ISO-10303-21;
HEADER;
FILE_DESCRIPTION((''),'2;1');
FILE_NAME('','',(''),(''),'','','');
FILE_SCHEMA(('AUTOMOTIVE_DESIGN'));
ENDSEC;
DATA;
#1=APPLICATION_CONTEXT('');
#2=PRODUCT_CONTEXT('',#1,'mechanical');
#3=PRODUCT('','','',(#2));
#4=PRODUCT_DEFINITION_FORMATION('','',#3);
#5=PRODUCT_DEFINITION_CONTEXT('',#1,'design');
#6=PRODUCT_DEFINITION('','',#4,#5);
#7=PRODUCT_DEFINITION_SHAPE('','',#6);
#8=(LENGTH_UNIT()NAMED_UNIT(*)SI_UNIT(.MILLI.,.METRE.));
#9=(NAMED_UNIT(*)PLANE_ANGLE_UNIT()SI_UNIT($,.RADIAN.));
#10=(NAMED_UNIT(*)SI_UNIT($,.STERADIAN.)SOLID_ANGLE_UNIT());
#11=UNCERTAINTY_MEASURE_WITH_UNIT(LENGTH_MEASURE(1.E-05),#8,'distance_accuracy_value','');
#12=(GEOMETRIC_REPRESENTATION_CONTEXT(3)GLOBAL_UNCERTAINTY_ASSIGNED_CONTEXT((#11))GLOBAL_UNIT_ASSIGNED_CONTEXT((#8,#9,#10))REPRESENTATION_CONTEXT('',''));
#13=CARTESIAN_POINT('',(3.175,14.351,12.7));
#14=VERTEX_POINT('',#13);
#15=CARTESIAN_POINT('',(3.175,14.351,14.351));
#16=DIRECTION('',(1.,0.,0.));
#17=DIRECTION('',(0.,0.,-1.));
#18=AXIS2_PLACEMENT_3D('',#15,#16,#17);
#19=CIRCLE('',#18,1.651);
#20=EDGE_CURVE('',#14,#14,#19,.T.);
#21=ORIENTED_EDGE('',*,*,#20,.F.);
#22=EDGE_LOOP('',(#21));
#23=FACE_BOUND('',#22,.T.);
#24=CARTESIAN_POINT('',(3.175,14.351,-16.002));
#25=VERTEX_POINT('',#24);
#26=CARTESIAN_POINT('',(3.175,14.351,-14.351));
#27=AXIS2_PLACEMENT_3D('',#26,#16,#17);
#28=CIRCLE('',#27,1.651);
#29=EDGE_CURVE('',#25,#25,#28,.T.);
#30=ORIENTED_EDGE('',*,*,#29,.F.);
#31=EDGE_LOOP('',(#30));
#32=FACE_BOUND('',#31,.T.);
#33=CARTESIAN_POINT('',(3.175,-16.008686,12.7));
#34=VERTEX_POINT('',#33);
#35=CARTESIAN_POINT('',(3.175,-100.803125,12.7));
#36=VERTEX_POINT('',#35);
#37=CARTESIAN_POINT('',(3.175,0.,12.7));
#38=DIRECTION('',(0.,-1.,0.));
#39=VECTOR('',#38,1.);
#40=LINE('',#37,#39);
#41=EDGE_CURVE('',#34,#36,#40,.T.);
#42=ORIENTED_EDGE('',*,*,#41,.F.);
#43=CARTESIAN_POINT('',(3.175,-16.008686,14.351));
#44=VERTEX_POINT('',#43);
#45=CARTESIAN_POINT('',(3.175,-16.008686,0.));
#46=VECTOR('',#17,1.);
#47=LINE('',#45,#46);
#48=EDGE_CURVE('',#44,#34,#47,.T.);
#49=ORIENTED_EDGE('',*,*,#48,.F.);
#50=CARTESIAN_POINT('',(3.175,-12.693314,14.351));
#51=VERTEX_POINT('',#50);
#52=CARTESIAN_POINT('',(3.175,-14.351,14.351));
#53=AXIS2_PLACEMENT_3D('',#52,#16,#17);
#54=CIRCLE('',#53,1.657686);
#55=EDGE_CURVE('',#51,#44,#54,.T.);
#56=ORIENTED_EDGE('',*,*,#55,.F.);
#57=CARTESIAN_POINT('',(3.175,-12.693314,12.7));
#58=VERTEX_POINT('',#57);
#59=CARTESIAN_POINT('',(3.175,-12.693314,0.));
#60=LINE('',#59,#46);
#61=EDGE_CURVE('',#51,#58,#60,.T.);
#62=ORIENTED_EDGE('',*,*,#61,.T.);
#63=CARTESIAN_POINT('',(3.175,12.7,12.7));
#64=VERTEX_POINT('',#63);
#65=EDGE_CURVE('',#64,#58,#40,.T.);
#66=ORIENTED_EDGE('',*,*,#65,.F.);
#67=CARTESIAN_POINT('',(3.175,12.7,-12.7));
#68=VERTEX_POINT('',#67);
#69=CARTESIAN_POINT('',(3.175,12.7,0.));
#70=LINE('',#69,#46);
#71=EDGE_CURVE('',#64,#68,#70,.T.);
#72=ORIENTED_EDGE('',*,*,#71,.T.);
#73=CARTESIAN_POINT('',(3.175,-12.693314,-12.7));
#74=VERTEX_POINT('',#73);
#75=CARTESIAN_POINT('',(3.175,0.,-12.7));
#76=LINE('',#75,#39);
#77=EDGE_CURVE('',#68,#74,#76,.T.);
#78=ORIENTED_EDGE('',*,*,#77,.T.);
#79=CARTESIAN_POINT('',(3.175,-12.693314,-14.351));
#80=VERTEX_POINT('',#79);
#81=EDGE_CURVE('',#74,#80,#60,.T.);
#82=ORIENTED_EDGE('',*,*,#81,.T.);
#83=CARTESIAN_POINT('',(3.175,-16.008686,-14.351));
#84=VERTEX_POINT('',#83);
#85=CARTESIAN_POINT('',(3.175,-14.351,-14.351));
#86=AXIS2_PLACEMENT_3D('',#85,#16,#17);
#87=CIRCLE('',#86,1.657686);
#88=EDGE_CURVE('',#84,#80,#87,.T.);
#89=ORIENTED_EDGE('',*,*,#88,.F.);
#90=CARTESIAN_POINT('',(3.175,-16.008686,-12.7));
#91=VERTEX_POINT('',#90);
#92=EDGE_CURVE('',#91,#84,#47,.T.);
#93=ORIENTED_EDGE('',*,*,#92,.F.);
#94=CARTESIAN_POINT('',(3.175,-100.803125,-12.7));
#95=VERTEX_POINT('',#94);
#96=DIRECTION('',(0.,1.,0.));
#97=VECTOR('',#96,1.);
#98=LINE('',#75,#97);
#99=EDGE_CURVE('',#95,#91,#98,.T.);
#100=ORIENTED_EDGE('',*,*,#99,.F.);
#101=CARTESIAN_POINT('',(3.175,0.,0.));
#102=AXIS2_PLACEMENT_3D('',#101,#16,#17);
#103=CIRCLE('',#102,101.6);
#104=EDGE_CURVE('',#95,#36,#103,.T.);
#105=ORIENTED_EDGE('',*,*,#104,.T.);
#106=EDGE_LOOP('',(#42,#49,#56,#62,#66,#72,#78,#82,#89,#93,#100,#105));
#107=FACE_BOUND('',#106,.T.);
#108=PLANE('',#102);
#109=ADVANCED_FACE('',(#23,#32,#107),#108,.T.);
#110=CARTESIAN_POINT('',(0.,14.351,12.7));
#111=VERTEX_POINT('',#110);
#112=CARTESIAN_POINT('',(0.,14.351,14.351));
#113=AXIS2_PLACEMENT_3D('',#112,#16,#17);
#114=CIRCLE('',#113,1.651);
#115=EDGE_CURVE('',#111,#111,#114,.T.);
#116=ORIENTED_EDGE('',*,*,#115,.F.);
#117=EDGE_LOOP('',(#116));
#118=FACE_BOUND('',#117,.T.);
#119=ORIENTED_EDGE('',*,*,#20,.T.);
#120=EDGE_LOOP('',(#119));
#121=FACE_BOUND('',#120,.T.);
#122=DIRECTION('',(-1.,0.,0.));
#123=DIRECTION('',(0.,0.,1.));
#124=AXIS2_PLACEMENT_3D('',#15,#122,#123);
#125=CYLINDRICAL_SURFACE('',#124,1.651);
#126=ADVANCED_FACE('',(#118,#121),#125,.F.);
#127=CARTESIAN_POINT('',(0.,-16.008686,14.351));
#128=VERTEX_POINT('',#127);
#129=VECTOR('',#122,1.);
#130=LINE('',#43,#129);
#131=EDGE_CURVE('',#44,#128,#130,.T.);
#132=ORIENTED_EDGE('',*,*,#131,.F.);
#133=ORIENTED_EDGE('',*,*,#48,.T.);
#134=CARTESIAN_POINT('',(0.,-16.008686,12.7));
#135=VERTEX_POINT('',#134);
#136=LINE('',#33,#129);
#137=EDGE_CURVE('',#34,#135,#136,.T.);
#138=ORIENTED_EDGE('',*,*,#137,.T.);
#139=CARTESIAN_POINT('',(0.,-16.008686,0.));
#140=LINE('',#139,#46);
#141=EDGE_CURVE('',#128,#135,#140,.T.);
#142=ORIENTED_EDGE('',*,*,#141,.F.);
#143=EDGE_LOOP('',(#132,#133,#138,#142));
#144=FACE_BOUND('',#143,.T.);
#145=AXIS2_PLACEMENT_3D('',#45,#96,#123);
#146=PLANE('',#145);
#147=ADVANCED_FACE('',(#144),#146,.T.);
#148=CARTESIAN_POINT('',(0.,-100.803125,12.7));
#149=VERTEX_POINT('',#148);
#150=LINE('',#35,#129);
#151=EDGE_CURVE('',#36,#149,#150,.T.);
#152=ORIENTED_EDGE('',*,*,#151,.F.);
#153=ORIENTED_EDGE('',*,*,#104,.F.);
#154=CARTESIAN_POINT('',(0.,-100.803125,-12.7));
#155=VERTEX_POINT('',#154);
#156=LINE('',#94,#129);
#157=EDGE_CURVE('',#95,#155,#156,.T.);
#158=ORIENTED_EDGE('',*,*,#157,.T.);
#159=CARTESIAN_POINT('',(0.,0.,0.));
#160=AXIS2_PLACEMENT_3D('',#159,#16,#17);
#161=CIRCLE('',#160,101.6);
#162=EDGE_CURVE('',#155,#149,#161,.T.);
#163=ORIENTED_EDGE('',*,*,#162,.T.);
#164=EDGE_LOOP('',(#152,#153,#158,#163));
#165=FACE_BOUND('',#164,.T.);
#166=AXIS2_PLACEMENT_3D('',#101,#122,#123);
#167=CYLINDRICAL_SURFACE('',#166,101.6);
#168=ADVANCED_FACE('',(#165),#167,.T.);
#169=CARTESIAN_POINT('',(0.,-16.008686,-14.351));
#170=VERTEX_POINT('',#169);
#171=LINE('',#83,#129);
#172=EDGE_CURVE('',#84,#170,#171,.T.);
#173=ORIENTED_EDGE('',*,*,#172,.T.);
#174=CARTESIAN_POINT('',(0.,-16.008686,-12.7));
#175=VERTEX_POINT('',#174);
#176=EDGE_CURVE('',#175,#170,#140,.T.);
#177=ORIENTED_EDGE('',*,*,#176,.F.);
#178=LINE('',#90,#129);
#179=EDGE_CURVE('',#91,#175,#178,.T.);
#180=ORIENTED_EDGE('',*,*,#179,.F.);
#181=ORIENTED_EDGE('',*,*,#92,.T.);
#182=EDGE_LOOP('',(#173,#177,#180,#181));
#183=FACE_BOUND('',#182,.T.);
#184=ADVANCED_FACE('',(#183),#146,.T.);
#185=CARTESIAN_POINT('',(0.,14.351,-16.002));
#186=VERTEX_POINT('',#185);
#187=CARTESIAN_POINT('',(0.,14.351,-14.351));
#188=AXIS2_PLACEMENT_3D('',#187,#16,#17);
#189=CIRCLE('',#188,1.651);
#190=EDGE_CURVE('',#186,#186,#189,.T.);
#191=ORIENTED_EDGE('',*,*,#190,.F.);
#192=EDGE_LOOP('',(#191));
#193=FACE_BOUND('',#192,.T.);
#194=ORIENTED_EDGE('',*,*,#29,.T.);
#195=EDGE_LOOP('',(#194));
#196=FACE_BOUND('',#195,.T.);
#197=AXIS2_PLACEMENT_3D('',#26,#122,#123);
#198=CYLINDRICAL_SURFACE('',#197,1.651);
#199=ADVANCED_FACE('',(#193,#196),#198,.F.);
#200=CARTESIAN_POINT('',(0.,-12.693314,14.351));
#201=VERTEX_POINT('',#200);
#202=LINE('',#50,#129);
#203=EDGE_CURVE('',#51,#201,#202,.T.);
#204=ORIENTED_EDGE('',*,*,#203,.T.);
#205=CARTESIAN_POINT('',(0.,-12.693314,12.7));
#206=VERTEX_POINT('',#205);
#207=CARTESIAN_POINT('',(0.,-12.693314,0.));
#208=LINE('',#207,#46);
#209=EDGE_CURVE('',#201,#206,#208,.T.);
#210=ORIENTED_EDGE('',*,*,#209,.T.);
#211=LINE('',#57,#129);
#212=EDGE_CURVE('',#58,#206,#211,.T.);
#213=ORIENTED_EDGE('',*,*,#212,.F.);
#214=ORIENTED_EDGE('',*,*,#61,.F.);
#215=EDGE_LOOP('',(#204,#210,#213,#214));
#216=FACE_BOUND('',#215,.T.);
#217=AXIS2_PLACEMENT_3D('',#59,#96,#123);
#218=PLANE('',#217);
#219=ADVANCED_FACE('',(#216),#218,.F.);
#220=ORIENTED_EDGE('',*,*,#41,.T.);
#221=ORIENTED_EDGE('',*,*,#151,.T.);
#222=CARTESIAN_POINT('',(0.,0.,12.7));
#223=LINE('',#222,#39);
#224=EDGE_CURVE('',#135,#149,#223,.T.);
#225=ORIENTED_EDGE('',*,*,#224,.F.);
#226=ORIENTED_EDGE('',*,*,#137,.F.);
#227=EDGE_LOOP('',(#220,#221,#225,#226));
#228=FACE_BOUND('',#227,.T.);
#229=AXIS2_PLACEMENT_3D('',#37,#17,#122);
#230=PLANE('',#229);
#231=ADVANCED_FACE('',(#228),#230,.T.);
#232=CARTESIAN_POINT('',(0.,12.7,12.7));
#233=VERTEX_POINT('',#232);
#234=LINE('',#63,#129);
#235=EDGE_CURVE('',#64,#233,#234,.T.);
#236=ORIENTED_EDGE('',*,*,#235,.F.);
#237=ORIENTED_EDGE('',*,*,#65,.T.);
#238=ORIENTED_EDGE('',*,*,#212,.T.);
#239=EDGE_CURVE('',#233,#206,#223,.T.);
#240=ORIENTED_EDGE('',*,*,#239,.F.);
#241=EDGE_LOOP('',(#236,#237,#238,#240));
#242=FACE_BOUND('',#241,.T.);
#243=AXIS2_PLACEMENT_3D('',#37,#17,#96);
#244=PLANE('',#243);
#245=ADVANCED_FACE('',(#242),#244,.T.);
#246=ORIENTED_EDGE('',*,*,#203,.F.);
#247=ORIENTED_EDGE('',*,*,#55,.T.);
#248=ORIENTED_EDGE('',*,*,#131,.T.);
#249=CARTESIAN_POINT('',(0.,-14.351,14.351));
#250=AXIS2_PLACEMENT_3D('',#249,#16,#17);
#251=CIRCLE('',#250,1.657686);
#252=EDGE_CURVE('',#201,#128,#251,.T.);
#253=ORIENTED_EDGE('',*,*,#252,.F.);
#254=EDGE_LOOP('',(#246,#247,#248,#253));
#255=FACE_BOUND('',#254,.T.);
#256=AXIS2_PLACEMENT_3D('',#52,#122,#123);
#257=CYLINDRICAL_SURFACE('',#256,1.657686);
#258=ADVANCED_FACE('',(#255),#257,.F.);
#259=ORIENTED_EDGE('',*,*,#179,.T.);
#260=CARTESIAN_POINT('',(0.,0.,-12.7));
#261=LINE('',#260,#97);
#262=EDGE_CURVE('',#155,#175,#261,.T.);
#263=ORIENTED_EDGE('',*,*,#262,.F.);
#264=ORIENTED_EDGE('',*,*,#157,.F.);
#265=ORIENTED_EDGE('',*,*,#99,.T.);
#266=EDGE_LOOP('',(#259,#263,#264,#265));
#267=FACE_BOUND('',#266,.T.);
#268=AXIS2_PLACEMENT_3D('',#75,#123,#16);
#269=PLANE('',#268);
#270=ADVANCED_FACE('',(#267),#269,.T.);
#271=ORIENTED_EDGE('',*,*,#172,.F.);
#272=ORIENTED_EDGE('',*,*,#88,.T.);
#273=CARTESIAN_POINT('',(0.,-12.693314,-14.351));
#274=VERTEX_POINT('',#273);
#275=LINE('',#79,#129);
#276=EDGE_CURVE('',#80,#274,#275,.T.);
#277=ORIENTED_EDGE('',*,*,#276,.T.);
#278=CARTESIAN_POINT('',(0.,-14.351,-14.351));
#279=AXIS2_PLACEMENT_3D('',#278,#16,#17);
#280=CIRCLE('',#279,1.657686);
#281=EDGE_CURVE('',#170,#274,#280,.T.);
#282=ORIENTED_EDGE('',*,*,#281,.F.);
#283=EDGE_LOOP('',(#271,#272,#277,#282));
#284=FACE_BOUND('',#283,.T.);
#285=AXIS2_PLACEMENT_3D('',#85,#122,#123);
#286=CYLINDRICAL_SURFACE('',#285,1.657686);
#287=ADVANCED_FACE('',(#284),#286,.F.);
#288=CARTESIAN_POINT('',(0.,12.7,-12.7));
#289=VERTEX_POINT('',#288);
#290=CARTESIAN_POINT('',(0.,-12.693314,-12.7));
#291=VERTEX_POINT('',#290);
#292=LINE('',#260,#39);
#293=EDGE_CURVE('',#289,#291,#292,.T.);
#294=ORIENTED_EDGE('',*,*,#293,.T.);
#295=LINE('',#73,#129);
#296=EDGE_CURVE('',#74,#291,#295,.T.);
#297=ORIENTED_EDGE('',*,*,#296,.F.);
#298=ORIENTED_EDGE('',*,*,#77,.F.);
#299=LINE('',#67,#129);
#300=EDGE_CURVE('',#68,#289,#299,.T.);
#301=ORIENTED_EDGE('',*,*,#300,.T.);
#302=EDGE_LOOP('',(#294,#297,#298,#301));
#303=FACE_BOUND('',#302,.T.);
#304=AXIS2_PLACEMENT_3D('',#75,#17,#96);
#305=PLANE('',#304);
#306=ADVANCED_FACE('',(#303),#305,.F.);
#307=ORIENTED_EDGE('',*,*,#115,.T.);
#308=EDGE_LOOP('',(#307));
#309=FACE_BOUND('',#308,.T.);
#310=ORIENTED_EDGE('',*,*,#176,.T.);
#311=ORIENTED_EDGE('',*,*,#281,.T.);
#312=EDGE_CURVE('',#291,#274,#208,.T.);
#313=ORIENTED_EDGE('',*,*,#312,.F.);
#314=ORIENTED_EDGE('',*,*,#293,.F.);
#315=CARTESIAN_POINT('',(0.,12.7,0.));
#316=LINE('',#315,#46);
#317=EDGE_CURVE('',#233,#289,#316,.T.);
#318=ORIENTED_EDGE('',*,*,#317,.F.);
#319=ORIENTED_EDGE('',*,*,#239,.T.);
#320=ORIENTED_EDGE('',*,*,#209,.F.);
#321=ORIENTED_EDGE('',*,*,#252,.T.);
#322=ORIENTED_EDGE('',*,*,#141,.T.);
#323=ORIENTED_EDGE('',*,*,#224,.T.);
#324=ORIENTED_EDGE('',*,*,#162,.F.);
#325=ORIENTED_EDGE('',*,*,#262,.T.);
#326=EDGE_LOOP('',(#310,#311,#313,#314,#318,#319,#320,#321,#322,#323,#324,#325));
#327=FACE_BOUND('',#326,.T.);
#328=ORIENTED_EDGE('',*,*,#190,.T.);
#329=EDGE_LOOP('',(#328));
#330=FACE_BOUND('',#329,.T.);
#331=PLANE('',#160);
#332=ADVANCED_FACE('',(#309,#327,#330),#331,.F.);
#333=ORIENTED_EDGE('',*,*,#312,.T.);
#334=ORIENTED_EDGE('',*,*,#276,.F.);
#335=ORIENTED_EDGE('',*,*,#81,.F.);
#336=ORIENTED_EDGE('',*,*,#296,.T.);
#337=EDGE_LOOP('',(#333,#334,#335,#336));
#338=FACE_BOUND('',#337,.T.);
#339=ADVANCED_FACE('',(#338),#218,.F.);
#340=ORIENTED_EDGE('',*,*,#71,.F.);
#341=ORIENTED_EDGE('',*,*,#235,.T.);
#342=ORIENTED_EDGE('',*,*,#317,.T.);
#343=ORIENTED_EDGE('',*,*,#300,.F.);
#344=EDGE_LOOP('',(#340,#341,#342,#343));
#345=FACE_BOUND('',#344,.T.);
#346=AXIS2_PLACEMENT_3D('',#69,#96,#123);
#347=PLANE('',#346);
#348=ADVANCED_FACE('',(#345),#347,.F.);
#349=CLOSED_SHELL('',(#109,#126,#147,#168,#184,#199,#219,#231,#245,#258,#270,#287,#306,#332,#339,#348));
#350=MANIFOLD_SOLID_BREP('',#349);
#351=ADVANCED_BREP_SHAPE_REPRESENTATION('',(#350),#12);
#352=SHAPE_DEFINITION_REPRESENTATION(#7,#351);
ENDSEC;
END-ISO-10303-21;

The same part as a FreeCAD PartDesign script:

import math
import FreeCAD as App
import Part
import Sketcher
from FreeCAD import Vector
Q = App.Units.Quantity

doc = App.newDocument("Part")
body = doc.addObject("PartDesign::Body", "Body")

# Sketch on YZ plane
sketch1 = doc.addObject("Sketcher::SketchObject", "Sketch")
body.addObject(sketch1)
sketch1.AttachmentSupport = (doc.YZ_Plane, [""])
sketch1.MapMode = "FlatFace"
sketch1.addGeometry([
    Part.LineSegment(Vector(-12.7, 12.7, 0), Vector(12.7, 12.7, 0)),  # 0
    Part.LineSegment(Vector(12.7, 12.7, 0), Vector(12.7, -12.7, 0)),  # 1
    Part.LineSegment(Vector(12.7, -12.7, 0), Vector(-12.7, -12.7, 0)),  # 2
    Part.LineSegment(Vector(-12.7, -12.7, 0), Vector(-12.7, -14.4, 0)),  # 3
    Part.ArcOfCircle(Part.Circle(Vector(-14.4, -14.4, 0), Vector(0, 0, 1), 1.7), math.radians(180), math.radians(360)),  # 4
    Part.LineSegment(Vector(-16, -14.4, 0), Vector(-16, -12.7, 0)),  # 5
    Part.LineSegment(Vector(-16, -12.7, 0), Vector(-100.8, -12.7, 0)),  # 6
    Part.ArcOfCircle(Part.Circle(Vector(0, 0, 0), Vector(0, 0, 1), 101.6), math.radians(-173), math.radians(173)),  # 7
    Part.LineSegment(Vector(-100.8, 12.7, 0), Vector(-16, 12.7, 0)),  # 8
    Part.LineSegment(Vector(-16, 12.7, 0), Vector(-16, 14.4, 0)),  # 9
    Part.ArcOfCircle(Part.Circle(Vector(-14.4, 14.4, 0), Vector(0, 0, 1), 1.7), math.radians(0), math.radians(180)),  # 10
    Part.LineSegment(Vector(-12.7, 14.4, 0), Vector(-12.7, 12.7, 0)),  # 11
    Part.Circle(Vector(14.4, 14.4, 0), Vector(0, 0, 1), 1.7),  # 12
    Part.Circle(Vector(14.4, -14.4, 0), Vector(0, 0, 1), 1.7),  # 13
], False)
sketch1.addConstraint([
    Sketcher.Constraint("Coincident", 0, 2, 1, 1),
    Sketcher.Constraint("Coincident", 1, 2, 2, 1),
    Sketcher.Constraint("Coincident", 2, 2, 3, 1),
    Sketcher.Constraint("Tangent", 3, 2, 4, 2),
    Sketcher.Constraint("Tangent", 4, 1, 5, 1),
    Sketcher.Constraint("Coincident", 5, 2, 6, 1),
    Sketcher.Constraint("Coincident", 6, 2, 7, 1),
    Sketcher.Constraint("Coincident", 7, 2, 8, 1),
    Sketcher.Constraint("Coincident", 8, 2, 9, 1),
    Sketcher.Constraint("Tangent", 9, 2, 10, 2),
    Sketcher.Constraint("Tangent", 10, 1, 11, 1),
    Sketcher.Constraint("Coincident", 11, 2, 0, 1),
    Sketcher.Constraint("Horizontal", 0),
    Sketcher.Constraint("Vertical", 1),
    Sketcher.Constraint("Horizontal", 2),
    Sketcher.Constraint("Vertical", 3),
    Sketcher.Constraint("Vertical", 5),
    Sketcher.Constraint("Horizontal", 6),
    Sketcher.Constraint("Horizontal", 8),
    Sketcher.Constraint("Vertical", 9),
    Sketcher.Constraint("Vertical", 11),
    Sketcher.Constraint("Coincident", 7, 3, -1, 1),
    Sketcher.Constraint("Equal", 4, 10),
    Sketcher.Constraint("Equal", 12, 13),
    Sketcher.Constraint("Symmetric", 4, 3, 12, 3, -1, 1),
    Sketcher.Constraint("Symmetric", 10, 3, 13, 3, -1, 1),
    Sketcher.Constraint("Symmetric", 10, 3, 12, 3, -2),
    Sketcher.Constraint("Horizontal", 2, 2, 5, 2),
    Sketcher.Constraint("Horizontal", 0, 2, 7, 2),
    Sketcher.Constraint("Vertical", 6, 2, 7, 2),
    Sketcher.Constraint("Radius", 7, Q("4 in")),
    Sketcher.Constraint("Diameter", 12, Q("0.13 in")),
    Sketcher.Constraint("DistanceY", 1, 2, 1, 1, Q("1 in")),
    Sketcher.Constraint("DistanceX", -1, 1, 0, 2, Q("0.5 in")),
    Sketcher.Constraint("DistanceY", 3, 2, 3, 1, Q("0.065 in")),
    Sketcher.Constraint("DistanceX", 10, 3, 12, 3, Q("1.13 in")),
    Sketcher.Constraint("Radius", 4, Q("1.657686 mm")),
])
pad1 = doc.addObject("PartDesign::Pad", "Pad")
body.addObject(pad1)
pad1.Profile = sketch1
pad1.Length = Q("0.125 in")

doc.recompute()
